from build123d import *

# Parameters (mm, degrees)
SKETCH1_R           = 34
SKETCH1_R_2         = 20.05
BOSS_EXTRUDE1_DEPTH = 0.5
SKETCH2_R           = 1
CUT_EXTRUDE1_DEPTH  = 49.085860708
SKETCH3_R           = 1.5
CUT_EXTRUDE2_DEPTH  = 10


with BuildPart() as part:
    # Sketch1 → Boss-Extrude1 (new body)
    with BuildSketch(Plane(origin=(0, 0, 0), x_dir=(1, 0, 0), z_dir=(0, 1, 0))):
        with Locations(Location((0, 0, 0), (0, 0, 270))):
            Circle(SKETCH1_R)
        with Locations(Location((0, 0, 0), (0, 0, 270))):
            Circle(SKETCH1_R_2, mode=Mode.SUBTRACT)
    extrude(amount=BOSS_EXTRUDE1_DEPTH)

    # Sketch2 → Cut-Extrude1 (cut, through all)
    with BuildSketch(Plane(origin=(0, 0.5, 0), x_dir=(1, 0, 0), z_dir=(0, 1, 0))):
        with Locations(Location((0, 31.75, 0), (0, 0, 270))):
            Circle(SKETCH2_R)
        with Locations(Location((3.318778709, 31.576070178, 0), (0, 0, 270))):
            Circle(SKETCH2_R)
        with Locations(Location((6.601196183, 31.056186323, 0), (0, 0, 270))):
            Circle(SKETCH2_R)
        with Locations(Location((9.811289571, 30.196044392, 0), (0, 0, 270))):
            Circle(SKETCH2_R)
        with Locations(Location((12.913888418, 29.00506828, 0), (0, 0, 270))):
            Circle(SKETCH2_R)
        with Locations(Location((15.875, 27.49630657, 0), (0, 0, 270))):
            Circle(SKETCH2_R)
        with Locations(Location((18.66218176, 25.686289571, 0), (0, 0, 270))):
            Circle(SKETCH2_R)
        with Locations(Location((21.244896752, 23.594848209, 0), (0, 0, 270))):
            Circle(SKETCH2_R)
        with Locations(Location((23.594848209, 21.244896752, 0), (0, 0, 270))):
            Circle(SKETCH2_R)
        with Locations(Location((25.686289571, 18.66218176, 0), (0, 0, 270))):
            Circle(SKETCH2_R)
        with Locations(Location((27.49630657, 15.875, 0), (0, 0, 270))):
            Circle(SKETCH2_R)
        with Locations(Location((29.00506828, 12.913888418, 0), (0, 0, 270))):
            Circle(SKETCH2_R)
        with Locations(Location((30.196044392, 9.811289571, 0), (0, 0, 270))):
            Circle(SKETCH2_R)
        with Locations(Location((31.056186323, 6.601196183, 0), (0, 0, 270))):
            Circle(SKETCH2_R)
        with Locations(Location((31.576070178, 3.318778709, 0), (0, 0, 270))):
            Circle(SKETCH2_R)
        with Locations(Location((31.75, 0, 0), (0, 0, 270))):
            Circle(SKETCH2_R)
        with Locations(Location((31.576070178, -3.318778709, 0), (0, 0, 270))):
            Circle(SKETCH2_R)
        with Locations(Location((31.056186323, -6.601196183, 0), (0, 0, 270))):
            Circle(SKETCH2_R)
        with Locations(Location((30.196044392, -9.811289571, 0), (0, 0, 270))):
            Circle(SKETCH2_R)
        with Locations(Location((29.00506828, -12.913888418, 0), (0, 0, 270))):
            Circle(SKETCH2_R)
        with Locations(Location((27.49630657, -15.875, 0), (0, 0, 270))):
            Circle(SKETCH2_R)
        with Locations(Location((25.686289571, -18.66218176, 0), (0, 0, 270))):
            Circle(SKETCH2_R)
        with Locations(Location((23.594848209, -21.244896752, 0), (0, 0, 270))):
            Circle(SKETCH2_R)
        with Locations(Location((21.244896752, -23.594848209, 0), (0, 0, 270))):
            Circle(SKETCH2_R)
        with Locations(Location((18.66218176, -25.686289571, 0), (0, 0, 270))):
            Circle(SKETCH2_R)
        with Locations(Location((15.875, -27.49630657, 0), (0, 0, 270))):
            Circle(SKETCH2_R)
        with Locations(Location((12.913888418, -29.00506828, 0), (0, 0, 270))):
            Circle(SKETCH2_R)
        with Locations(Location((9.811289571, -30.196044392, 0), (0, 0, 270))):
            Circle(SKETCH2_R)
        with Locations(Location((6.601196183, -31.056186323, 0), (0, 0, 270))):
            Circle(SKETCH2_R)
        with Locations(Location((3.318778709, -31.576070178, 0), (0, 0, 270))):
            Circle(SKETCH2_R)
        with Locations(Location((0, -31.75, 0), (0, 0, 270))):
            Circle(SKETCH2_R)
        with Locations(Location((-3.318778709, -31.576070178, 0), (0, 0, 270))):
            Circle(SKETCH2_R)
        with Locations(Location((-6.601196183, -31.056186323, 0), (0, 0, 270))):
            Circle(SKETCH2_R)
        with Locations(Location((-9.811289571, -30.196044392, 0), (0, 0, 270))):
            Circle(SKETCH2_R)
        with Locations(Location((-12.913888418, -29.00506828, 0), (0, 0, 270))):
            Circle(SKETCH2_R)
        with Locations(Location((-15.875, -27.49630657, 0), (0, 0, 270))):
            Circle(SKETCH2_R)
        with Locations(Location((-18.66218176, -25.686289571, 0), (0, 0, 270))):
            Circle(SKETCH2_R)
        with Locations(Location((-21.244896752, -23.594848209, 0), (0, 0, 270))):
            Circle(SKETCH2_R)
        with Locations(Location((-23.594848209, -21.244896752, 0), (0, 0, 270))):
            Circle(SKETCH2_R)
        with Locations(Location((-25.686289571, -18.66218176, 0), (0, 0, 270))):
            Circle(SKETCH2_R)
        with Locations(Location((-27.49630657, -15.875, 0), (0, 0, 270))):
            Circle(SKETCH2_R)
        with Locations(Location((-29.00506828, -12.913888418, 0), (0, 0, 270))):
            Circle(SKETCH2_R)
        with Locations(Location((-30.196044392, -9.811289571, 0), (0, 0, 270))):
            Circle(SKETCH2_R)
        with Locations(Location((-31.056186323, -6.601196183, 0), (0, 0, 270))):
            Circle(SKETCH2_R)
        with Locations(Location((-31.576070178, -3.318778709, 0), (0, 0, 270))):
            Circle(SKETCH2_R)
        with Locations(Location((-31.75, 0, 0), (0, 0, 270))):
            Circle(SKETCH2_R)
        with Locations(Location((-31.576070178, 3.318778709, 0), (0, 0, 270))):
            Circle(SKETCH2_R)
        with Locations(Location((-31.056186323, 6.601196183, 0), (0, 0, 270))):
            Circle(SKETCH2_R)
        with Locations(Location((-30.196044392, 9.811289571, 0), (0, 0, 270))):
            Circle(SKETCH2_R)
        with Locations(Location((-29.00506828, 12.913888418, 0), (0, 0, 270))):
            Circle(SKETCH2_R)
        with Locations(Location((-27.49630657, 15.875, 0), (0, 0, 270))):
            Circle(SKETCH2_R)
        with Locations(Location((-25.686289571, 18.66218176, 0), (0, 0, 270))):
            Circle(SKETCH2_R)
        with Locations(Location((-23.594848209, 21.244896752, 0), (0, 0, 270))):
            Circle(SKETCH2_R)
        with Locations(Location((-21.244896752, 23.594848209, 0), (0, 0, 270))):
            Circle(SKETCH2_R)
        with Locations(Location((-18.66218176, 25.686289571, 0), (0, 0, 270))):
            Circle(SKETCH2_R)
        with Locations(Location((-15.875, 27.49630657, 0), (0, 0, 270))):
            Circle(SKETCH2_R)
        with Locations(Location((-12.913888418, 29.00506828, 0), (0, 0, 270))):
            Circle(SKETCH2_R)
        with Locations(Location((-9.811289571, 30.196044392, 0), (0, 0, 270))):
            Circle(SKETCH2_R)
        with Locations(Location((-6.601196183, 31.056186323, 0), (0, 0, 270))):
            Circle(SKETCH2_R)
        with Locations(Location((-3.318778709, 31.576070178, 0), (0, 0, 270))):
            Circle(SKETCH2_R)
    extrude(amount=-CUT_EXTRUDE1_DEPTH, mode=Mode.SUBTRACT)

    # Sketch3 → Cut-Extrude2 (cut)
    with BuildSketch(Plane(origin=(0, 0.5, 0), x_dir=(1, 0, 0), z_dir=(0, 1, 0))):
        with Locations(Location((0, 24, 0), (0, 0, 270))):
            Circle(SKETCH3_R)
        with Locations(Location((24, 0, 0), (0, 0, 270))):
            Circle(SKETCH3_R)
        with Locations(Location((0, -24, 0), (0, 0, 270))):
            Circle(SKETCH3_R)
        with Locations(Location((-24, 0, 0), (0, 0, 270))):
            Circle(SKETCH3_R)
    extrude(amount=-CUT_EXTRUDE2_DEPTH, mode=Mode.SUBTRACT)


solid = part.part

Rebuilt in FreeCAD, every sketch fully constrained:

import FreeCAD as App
import Part
import Sketcher
from FreeCAD import Vector

doc = App.newDocument("Part")
body = doc.addObject("PartDesign::Body", "Body")

sketch1 = body.newObject("Sketcher::SketchObject", "Sketch")
sketch1.AttachmentSupport = (doc.getObject("XZ_Plane"), [""])
sketch1.MapMode = "FlatFace"
sketch1.addGeometry(Part.Circle(Vector(0, 0, 0), Vector(0, 0, 1), 34), False)
sketch1.addGeometry(Part.Circle(Vector(0, 0, 0), Vector(0, 0, 1), 20.05), False)
sketch1.addConstraint(Sketcher.Constraint("Coincident", 0, 3, -1, 1))
sketch1.addConstraint(Sketcher.Constraint("Coincident", 1, 3, -1, 1))
sketch1.addConstraint(Sketcher.Constraint("Diameter", 0, 68.0))
sketch1.addConstraint(Sketcher.Constraint("Diameter", 1, 40.1))
pad1 = body.newObject("PartDesign::Pad", "Pad")
pad1.Profile = sketch1
pad1.Length = 0.5
pad1.Reversed = True

sketch2 = body.newObject("Sketcher::SketchObject", "Sketch001")
sketch2.AttachmentSupport = (doc.getObject("XZ_Plane"), [""])
sketch2.MapMode = "FlatFace"
sketch2.AttachmentOffset = App.Placement(Vector(0, 0, -0.5), App.Rotation())
sketch2.addGeometry(Part.Circle(Vector(0, -31.75, 0), Vector(0, 0, 1), 1), False)
sketch2.addGeometry(Part.Circle(Vector(3.318779, -31.57607, 0), Vector(0, 0, 1), 1), False)
sketch2.addGeometry(Part.Circle(Vector(6.601196, -31.056186, 0), Vector(0, 0, 1), 1), False)
sketch2.addGeometry(Part.Circle(Vector(9.81129, -30.196044, 0), Vector(0, 0, 1), 1), False)
sketch2.addGeometry(Part.Circle(Vector(12.913888, -29.005068, 0), Vector(0, 0, 1), 1), False)
sketch2.addGeometry(Part.Circle(Vector(15.875, -27.496307, 0), Vector(0, 0, 1), 1), False)
sketch2.addGeometry(Part.Circle(Vector(18.662182, -25.68629, 0), Vector(0, 0, 1), 1), False)
sketch2.addGeometry(Part.Circle(Vector(21.244897, -23.594848, 0), Vector(0, 0, 1), 1), False)
sketch2.addGeometry(Part.Circle(Vector(23.594848, -21.244897, 0), Vector(0, 0, 1), 1), False)
sketch2.addGeometry(Part.Circle(Vector(25.68629, -18.662182, 0), Vector(0, 0, 1), 1), False)
sketch2.addGeometry(Part.Circle(Vector(27.496307, -15.875, 0), Vector(0, 0, 1), 1), False)
sketch2.addGeometry(Part.Circle(Vector(29.005068, -12.913888, 0), Vector(0, 0, 1), 1), False)
sketch2.addGeometry(Part.Circle(Vector(30.196044, -9.81129, 0), Vector(0, 0, 1), 1), False)
sketch2.addGeometry(Part.Circle(Vector(31.056186, -6.601196, 0), Vector(0, 0, 1), 1), False)
sketch2.addGeometry(Part.Circle(Vector(31.57607, -3.318779, 0), Vector(0, 0, 1), 1), False)
sketch2.addGeometry(Part.Circle(Vector(31.75, 0, 0), Vector(0, 0, 1), 1), False)
sketch2.addGeometry(Part.Circle(Vector(31.57607, 3.318779, 0), Vector(0, 0, 1), 1), False)
sketch2.addGeometry(Part.Circle(Vector(31.056186, 6.601196, 0), Vector(0, 0, 1), 1), False)
sketch2.addGeometry(Part.Circle(Vector(30.196044, 9.81129, 0), Vector(0, 0, 1), 1), False)
sketch2.addGeometry(Part.Circle(Vector(29.005068, 12.913888, 0), Vector(0, 0, 1), 1), False)
sketch2.addGeometry(Part.Circle(Vector(27.496307, 15.875, 0), Vector(0, 0, 1), 1), False)
sketch2.addGeometry(Part.Circle(Vector(25.68629, 18.662182, 0), Vector(0, 0, 1), 1), False)
sketch2.addGeometry(Part.Circle(Vector(23.594848, 21.244897, 0), Vector(0, 0, 1), 1), False)
sketch2.addGeometry(Part.Circle(Vector(21.244897, 23.594848, 0), Vector(0, 0, 1), 1), False)
sketch2.addGeometry(Part.Circle(Vector(18.662182, 25.68629, 0), Vector(0, 0, 1), 1), False)
sketch2.addGeometry(Part.Circle(Vector(15.875, 27.496307, 0), Vector(0, 0, 1), 1), False)
sketch2.addGeometry(Part.Circle(Vector(12.913888, 29.005068, 0), Vector(0, 0, 1), 1), False)
sketch2.addGeometry(Part.Circle(Vector(9.81129, 30.196044, 0), Vector(0, 0, 1), 1), False)
sketch2.addGeometry(Part.Circle(Vector(6.601196, 31.056186, 0), Vector(0, 0, 1), 1), False)
sketch2.addGeometry(Part.Circle(Vector(3.318779, 31.57607, 0), Vector(0, 0, 1), 1), False)
sketch2.addGeometry(Part.Circle(Vector(0, 31.75, 0), Vector(0, 0, 1), 1), False)
sketch2.addGeometry(Part.Circle(Vector(-3.318779, 31.57607, 0), Vector(0, 0, 1), 1), False)
sketch2.addGeometry(Part.Circle(Vector(-6.601196, 31.056186, 0), Vector(0, 0, 1), 1), False)
sketch2.addGeometry(Part.Circle(Vector(-9.81129, 30.196044, 0), Vector(0, 0, 1), 1), False)
sketch2.addGeometry(Part.Circle(Vector(-12.913888, 29.005068, 0), Vector(0, 0, 1), 1), False)
sketch2.addGeometry(Part.Circle(Vector(-15.875, 27.496307, 0), Vector(0, 0, 1), 1), False)
sketch2.addGeometry(Part.Circle(Vector(-18.662182, 25.68629, 0), Vector(0, 0, 1), 1), False)
sketch2.addGeometry(Part.Circle(Vector(-21.244897, 23.594848, 0), Vector(0, 0, 1), 1), False)
sketch2.addGeometry(Part.Circle(Vector(-23.594848, 21.244897, 0), Vector(0, 0, 1), 1), False)
sketch2.addGeometry(Part.Circle(Vector(-25.68629, 18.662182, 0), Vector(0, 0, 1), 1), False)
sketch2.addGeometry(Part.Circle(Vector(-27.496307, 15.875, 0), Vector(0, 0, 1), 1), False)
sketch2.addGeometry(Part.Circle(Vector(-29.005068, 12.913888, 0), Vector(0, 0, 1), 1), False)
sketch2.addGeometry(Part.Circle(Vector(-30.196044, 9.81129, 0), Vector(0, 0, 1), 1), False)
sketch2.addGeometry(Part.Circle(Vector(-31.056186, 6.601196, 0), Vector(0, 0, 1), 1), False)
sketch2.addGeometry(Part.Circle(Vector(-31.57607, 3.318779, 0), Vector(0, 0, 1), 1), False)
sketch2.addGeometry(Part.Circle(Vector(-31.75, 0, 0), Vector(0, 0, 1), 1), False)
sketch2.addGeometry(Part.Circle(Vector(-31.57607, -3.318779, 0), Vector(0, 0, 1), 1), False)
sketch2.addGeometry(Part.Circle(Vector(-31.056186, -6.601196, 0), Vector(0, 0, 1), 1), False)
sketch2.addGeometry(Part.Circle(Vector(-30.196044, -9.81129, 0), Vector(0, 0, 1), 1), False)
sketch2.addGeometry(Part.Circle(Vector(-29.005068, -12.913888, 0), Vector(0, 0, 1), 1), False)
sketch2.addGeometry(Part.Circle(Vector(-27.496307, -15.875, 0), Vector(0, 0, 1), 1), False)
sketch2.addGeometry(Part.Circle(Vector(-25.68629, -18.662182, 0), Vector(0, 0, 1), 1), False)
sketch2.addGeometry(Part.Circle(Vector(-23.594848, -21.244897, 0), Vector(0, 0, 1), 1), False)
sketch2.addGeometry(Part.Circle(Vector(-21.244897, -23.594848, 0), Vector(0, 0, 1), 1), False)
sketch2.addGeometry(Part.Circle(Vector(-18.662182, -25.68629, 0), Vector(0, 0, 1), 1), False)
sketch2.addGeometry(Part.Circle(Vector(-15.875, -27.496307, 0), Vector(0, 0, 1), 1), False)
sketch2.addGeometry(Part.Circle(Vector(-12.913888, -29.005068, 0), Vector(0, 0, 1), 1), False)
sketch2.addGeometry(Part.Circle(Vector(-9.81129, -30.196044, 0), Vector(0, 0, 1), 1), False)
sketch2.addGeometry(Part.Circle(Vector(-6.601196, -31.056186, 0), Vector(0, 0, 1), 1), False)
sketch2.addGeometry(Part.Circle(Vector(-3.318779, -31.57607, 0), Vector(0, 0, 1), 1), False)
sketch2.addConstraint(Sketcher.Constraint("Equal", 0, 1))
sketch2.addConstraint(Sketcher.Constraint("Equal", 1, 2))
sketch2.addConstraint(Sketcher.Constraint("Equal", 2, 3))
sketch2.addConstraint(Sketcher.Constraint("Equal", 3, 4))
sketch2.addConstraint(Sketcher.Constraint("Equal", 4, 5))
sketch2.addConstraint(Sketcher.Constraint("Equal", 5, 6))
sketch2.addConstraint(Sketcher.Constraint("Equal", 6, 7))
sketch2.addConstraint(Sketcher.Constraint("Equal", 7, 8))
sketch2.addConstraint(Sketcher.Constraint("Equal", 8, 9))
sketch2.addConstraint(Sketcher.Constraint("Equal", 9, 10))
sketch2.addConstraint(Sketcher.Constraint("Equal", 10, 11))
sketch2.addConstraint(Sketcher.Constraint("Equal", 11, 12))
sketch2.addConstraint(Sketcher.Constraint("Equal", 12, 13))
sketch2.addConstraint(Sketcher.Constraint("Equal", 13, 14))
sketch2.addConstraint(Sketcher.Constraint("Equal", 14, 15))
sketch2.addConstraint(Sketcher.Constraint("Equal", 15, 16))
sketch2.addConstraint(Sketcher.Constraint("Equal", 16, 17))
sketch2.addConstraint(Sketcher.Constraint("Equal", 17, 18))
sketch2.addConstraint(Sketcher.Constraint("Equal", 18, 19))
sketch2.addConstraint(Sketcher.Constraint("Equal", 19, 20))
sketch2.addConstraint(Sketcher.Constraint("Equal", 20, 21))
sketch2.addConstraint(Sketcher.Constraint("Equal", 21, 22))
sketch2.addConstraint(Sketcher.Constraint("Equal", 22, 23))
sketch2.addConstraint(Sketcher.Constraint("Equal", 23, 24))
sketch2.addConstraint(Sketcher.Constraint("Equal", 24, 25))
sketch2.addConstraint(Sketcher.Constraint("Equal", 25, 26))
sketch2.addConstraint(Sketcher.Constraint("Equal", 26, 27))
sketch2.addConstraint(Sketcher.Constraint("Equal", 27, 28))
sketch2.addConstraint(Sketcher.Constraint("Equal", 28, 29))
sketch2.addConstraint(Sketcher.Constraint("Equal", 29, 30))
sketch2.addConstraint(Sketcher.Constraint("Equal", 30, 31))
sketch2.addConstraint(Sketcher.Constraint("Equal", 31, 32))
sketch2.addConstraint(Sketcher.Constraint("Equal", 32, 33))
sketch2.addConstraint(Sketcher.Constraint("Equal", 33, 34))
sketch2.addConstraint(Sketcher.Constraint("Equal", 34, 35))
sketch2.addConstraint(Sketcher.Constraint("Equal", 35, 36))
sketch2.addConstraint(Sketcher.Constraint("Equal", 36, 37))
sketch2.addConstraint(Sketcher.Constraint("Equal", 37, 38))
sketch2.addConstraint(Sketcher.Constraint("Equal", 38, 39))
sketch2.addConstraint(Sketcher.Constraint("Equal", 39, 40))
sketch2.addConstraint(Sketcher.Constraint("Equal", 40, 41))
sketch2.addConstraint(Sketcher.Constraint("Equal", 41, 42))
sketch2.addConstraint(Sketcher.Constraint("Equal", 42, 43))
sketch2.addConstraint(Sketcher.Constraint("Equal", 43, 44))
sketch2.addConstraint(Sketcher.Constraint("Equal", 44, 45))
sketch2.addConstraint(Sketcher.Constraint("Equal", 45, 46))
sketch2.addConstraint(Sketcher.Constraint("Equal", 46, 47))
sketch2.addConstraint(Sketcher.Constraint("Equal", 47, 48))
sketch2.addConstraint(Sketcher.Constraint("Equal", 48, 49))
sketch2.addConstraint(Sketcher.Constraint("Equal", 49, 50))
sketch2.addConstraint(Sketcher.Constraint("Equal", 50, 51))
sketch2.addConstraint(Sketcher.Constraint("Equal", 51, 52))
sketch2.addConstraint(Sketcher.Constraint("Equal", 52, 53))
sketch2.addConstraint(Sketcher.Constraint("Equal", 53, 54))
sketch2.addConstraint(Sketcher.Constraint("Equal", 54, 55))
sketch2.addConstraint(Sketcher.Constraint("Equal", 55, 56))
sketch2.addConstraint(Sketcher.Constraint("Equal", 56, 57))
sketch2.addConstraint(Sketcher.Constraint("Equal", 57, 58))
sketch2.addConstraint(Sketcher.Constraint("Equal", 58, 59))
sketch2.addConstraint(Sketcher.Constraint("Symmetric", 0, 3, 30, 3, -1, 1))
sketch2.addConstraint(Sketcher.Constraint("Symmetric", 1, 3, 31, 3, -1, 1))
sketch2.addConstraint(Sketcher.Constraint("Symmetric", 2, 3, 32, 3, -1, 1))
sketch2.addConstraint(Sketcher.Constraint("Symmetric", 3, 3, 33, 3, -1, 1))
sketch2.addConstraint(Sketcher.Constraint("Symmetric", 4, 3, 34, 3, -1, 1))
sketch2.addConstraint(Sketcher.Constraint("Symmetric", 5, 3, 35, 3, -1, 1))
sketch2.addConstraint(Sketcher.Constraint("Symmetric", 6, 3, 36, 3, -1, 1))
sketch2.addConstraint(Sketcher.Constraint("Symmetric", 7, 3, 37, 3, -1, 1))
sketch2.addConstraint(Sketcher.Constraint("Symmetric", 8, 3, 38, 3, -1, 1))
sketch2.addConstraint(Sketcher.Constraint("Symmetric", 9, 3, 39, 3, -1, 1))
sketch2.addConstraint(Sketcher.Constraint("Symmetric", 10, 3, 40, 3, -1, 1))
sketch2.addConstraint(Sketcher.Constraint("Symmetric", 11, 3, 41, 3, -1, 1))
sketch2.addConstraint(Sketcher.Constraint("Symmetric", 12, 3, 42, 3, -1, 1))
sketch2.addConstraint(Sketcher.Constraint("Symmetric", 13, 3, 43, 3, -1, 1))
sketch2.addConstraint(Sketcher.Constraint("Symmetric", 14, 3, 44, 3, -1, 1))
sketch2.addConstraint(Sketcher.Constraint("Symmetric", 15, 3, 45, 3, -1, 1))
sketch2.addConstraint(Sketcher.Constraint("Symmetric", 16, 3, 46, 3, -1, 1))
sketch2.addConstraint(Sketcher.Constraint("Symmetric", 17, 3, 47, 3, -1, 1))
sketch2.addConstraint(Sketcher.Constraint("Symmetric", 18, 3, 48, 3, -1, 1))
sketch2.addConstraint(Sketcher.Constraint("Symmetric", 19, 3, 49, 3, -1, 1))
sketch2.addConstraint(Sketcher.Constraint("Symmetric", 20, 3, 50, 3, -1, 1))
sketch2.addConstraint(Sketcher.Constraint("Symmetric", 21, 3, 51, 3, -1, 1))
sketch2.addConstraint(Sketcher.Constraint("Symmetric", 22, 3, 52, 3, -1, 1))
sketch2.addConstraint(Sketcher.Constraint("Symmetric", 23, 3, 53, 3, -1, 1))
sketch2.addConstraint(Sketcher.Constraint("Symmetric", 24, 3, 54, 3, -1, 1))
sketch2.addConstraint(Sketcher.Constraint("Symmetric", 25, 3, 55, 3, -1, 1))
sketch2.addConstraint(Sketcher.Constraint("Symmetric", 26, 3, 56, 3, -1, 1))
sketch2.addConstraint(Sketcher.Constraint("Symmetric", 27, 3, 57, 3, -1, 1))
sketch2.addConstraint(Sketcher.Constraint("Symmetric", 28, 3, 58, 3, -1, 1))
sketch2.addConstraint(Sketcher.Constraint("Symmetric", 29, 3, 59, 3, -1, 1))
sketch2.addConstraint(Sketcher.Constraint("Symmetric", 29, 3, 31, 3, -2))
sketch2.addConstraint(Sketcher.Constraint("Symmetric", 28, 3, 32, 3, -2))
sketch2.addConstraint(Sketcher.Constraint("Symmetric", 27, 3, 33, 3, -2))
sketch2.addConstraint(Sketcher.Constraint("Symmetric", 26, 3, 34, 3, -2))
sketch2.addConstraint(Sketcher.Constraint("Symmetric", 25, 3, 35, 3, -2))
sketch2.addConstraint(Sketcher.Constraint("Symmetric", 24, 3, 36, 3, -2))
sketch2.addConstraint(Sketcher.Constraint("Symmetric", 23, 3, 37, 3, -2))
sketch2.addConstraint(Sketcher.Constraint("Symmetric", 22, 3, 38, 3, -2))
sketch2.addConstraint(Sketcher.Constraint("Symmetric", 21, 3, 39, 3, -2))
sketch2.addConstraint(Sketcher.Constraint("Symmetric", 20, 3, 40, 3, -2))
sketch2.addConstraint(Sketcher.Constraint("Symmetric", 19, 3, 41, 3, -2))
sketch2.addConstraint(Sketcher.Constraint("Symmetric", 18, 3, 42, 3, -2))
sketch2.addConstraint(Sketcher.Constraint("Symmetric", 17, 3, 43, 3, -2))
sketch2.addConstraint(Sketcher.Constraint("Symmetric", 16, 3, 44, 3, -2))
sketch2.addConstraint(Sketcher.Constraint("PointOnObject", 0, 3, -2))
sketch2.addConstraint(Sketcher.Constraint("PointOnObject", 15, 3, -1))
sketch2.addConstraint(Sketcher.Constraint("Diameter", 0, 2.0))
sketch2.addConstraint(Sketcher.Constraint("DistanceY", 0, 3, -1, 1, 31.75))
sketch2.addConstraint(Sketcher.Constraint("DistanceX", -1, 1, 15, 3, 31.75))
sketch2.addConstraint(Sketcher.Constraint("DistanceX", -1, 1, 5, 3, 15.875))
sketch2.addConstraint(Sketcher.Constraint("DistanceY", 10, 3, -1, 1, 15.875))
sketch2.addConstraint(Sketcher.Constraint("DistanceY", 1, 3, 4, 3, 2.571002))
sketch2.addConstraint(Sketcher.Constraint("DistanceX", 11, 3, 14, 3, 2.571002))
sketch2.addConstraint(Sketcher.Constraint("DistanceX", 3, 3, 4, 3, 3.102599))
sketch2.addConstraint(Sketcher.Constraint("DistanceX", 2, 3, 7, 3, 14.643701))
sketch2.addConstraint(Sketcher.Constraint("DistanceX", 4, 3, 9, 3, 12.772401))
sketch2.addConstraint(Sketcher.Constraint("DistanceY", 6, 3, 11, 3, 12.772401))
sketch2.addConstraint(Sketcher.Constraint("DistanceY", 11, 3, 12, 3, 3.102599))
sketch2.addConstraint(Sketcher.Constraint("DistanceY", 8, 3, 13, 3, 14.643701))
sketch2.addConstraint(Sketcher.Constraint("DistanceX", -1, 1, 1, 3, 3.318779))
sketch2.addConstraint(Sketcher.Constraint("DistanceY", 1, 3, -1, 1, 31.57607))
sketch2.addConstraint(Sketcher.Constraint("DistanceX", -1, 1, 3, 3, 9.81129))
sketch2.addConstraint(Sketcher.Constraint("DistanceX", -1, 1, 6, 3, 18.662182))
sketch2.addConstraint(Sketcher.Constraint("DistanceY", 6, 3, -1, 1, 25.68629))
sketch2.addConstraint(Sketcher.Constraint("DistanceY", 7, 3, -1, 1, 23.594848))
sketch2.addConstraint(Sketcher.Constraint("DistanceX", -1, 1, 8, 3, 23.594848))
sketch2.addConstraint(Sketcher.Constraint("DistanceY", 9, 3, -1, 1, 18.662182))
sketch2.addConstraint(Sketcher.Constraint("DistanceX", -1, 1, 11, 3, 29.005068))
sketch2.addConstraint(Sketcher.Constraint("DistanceY", 14, 3, -1, 1, 3.318779))
sketch2.addConstraint(Sketcher.Constraint("DistanceY", 2, 3, 3, 3, 0.860142))
sketch2.addConstraint(Sketcher.Constraint("DistanceY", 2, 3, 4, 3, 2.051118))
sketch2.addConstraint(Sketcher.Constraint("DistanceY", 4, 3, 5, 3, 1.508762))
sketch2.addConstraint(Sketcher.Constraint("DistanceX", 4, 3, 7, 3, 8.331008))
sketch2.addConstraint(Sketcher.Constraint("DistanceY", 7, 3, 8, 3, 2.349951))
sketch2.addConstraint(Sketcher.Constraint("DistanceX", 8, 3, 10, 3, 3.901458))
sketch2.addConstraint(Sketcher.Constraint("DistanceX", 12, 3, 13, 3, 0.860142))
sketch2.addConstraint(Sketcher.Constraint("DistanceX", 11, 3, 13, 3, 2.051118))
pocket1 = body.newObject("PartDesign::Pocket", "Pocket")
pocket1.Profile = sketch2
pocket1.Type = "ThroughAll"
pocket1.Reversed = True

sketch3 = body.newObject("Sketcher::SketchObject", "Sketch002")
sketch3.AttachmentSupport = (doc.getObject("XZ_Plane"), [""])
sketch3.MapMode = "FlatFace"
sketch3.AttachmentOffset = App.Placement(Vector(0, 0, -0.5), App.Rotation())
sketch3.addGeometry(Part.Circle(Vector(0, -24, 0), Vector(0, 0, 1), 1.5), False)
sketch3.addGeometry(Part.Circle(Vector(24, 0, 0), Vector(0, 0, 1), 1.5), False)
sketch3.addGeometry(Part.Circle(Vector(0, 24, 0), Vector(0, 0, 1), 1.5), False)
sketch3.addGeometry(Part.Circle(Vector(-24, 0, 0), Vector(0, 0, 1), 1.5), False)
sketch3.addConstraint(Sketcher.Constraint("Equal", 0, 1))
sketch3.addConstraint(Sketcher.Constraint("Equal", 1, 2))
sketch3.addConstraint(Sketcher.Constraint("Equal", 2, 3))
sketch3.addConstraint(Sketcher.Constraint("Symmetric", 0, 3, 2, 3, -1, 1))
sketch3.addConstraint(Sketcher.Constraint("Symmetric", 1, 3, 3, 3, -1, 1))
sketch3.addConstraint(Sketcher.Constraint("PointOnObject", 0, 3, -2))
sketch3.addConstraint(Sketcher.Constraint("PointOnObject", 1, 3, -1))
sketch3.addConstraint(Sketcher.Constraint("Diameter", 0, 3.0))
sketch3.addConstraint(Sketcher.Constraint("DistanceY", 0, 3, -1, 1, 24.0))
sketch3.addConstraint(Sketcher.Constraint("DistanceX", -1, 1, 1, 3, 24.0))
pocket2 = body.newObject("PartDesign::Pocket", "Pocket001")
pocket2.Profile = sketch3
pocket2.Length = 10
pocket2.Reversed = True

doc.recompute()
